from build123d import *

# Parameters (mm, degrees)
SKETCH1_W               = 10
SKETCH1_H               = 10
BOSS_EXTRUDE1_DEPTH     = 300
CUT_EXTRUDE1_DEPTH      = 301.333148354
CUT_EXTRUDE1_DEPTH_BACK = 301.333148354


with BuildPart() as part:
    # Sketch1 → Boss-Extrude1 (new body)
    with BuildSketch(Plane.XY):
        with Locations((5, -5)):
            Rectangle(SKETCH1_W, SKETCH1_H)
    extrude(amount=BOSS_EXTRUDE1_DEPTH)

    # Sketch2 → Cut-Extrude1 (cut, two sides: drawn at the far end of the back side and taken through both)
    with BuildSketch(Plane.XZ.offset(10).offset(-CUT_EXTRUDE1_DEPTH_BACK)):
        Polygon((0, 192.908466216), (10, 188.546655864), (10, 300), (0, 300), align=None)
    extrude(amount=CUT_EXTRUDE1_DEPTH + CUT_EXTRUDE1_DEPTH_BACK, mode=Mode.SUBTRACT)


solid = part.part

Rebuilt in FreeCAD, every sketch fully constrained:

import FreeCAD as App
import Part
import Sketcher
from FreeCAD import Vector
Q = App.Units.Quantity

doc = App.newDocument("Part")
body = doc.addObject("PartDesign::Body", "Body")

# Sketch on XY plane
sketch1 = doc.addObject("Sketcher::SketchObject", "Sketch")
body.addObject(sketch1)
sketch1.AttachmentSupport = (doc.XY_Plane, [""])
sketch1.MapMode = "FlatFace"
sketch1.addGeometry([
    Part.LineSegment(Vector(0, 0, 0), Vector(0, -10, 0)),
    Part.LineSegment(Vector(0, -10, 0), Vector(10, -10, 0)),
    Part.LineSegment(Vector(10, -10, 0), Vector(10, 0, 0)),
    Part.LineSegment(Vector(10, 0, 0), Vector(0, 0, 0)),
], False)
sketch1.addConstraint([
    Sketcher.Constraint("Coincident", 0, 2, 1, 1),
    Sketcher.Constraint("Coincident", 1, 2, 2, 1),
    Sketcher.Constraint("Coincident", 2, 2, 3, 1),
    Sketcher.Constraint("Coincident", 3, 2, 0, 1),
    Sketcher.Constraint("Vertical", 0),
    Sketcher.Constraint("Horizontal", 1),
    Sketcher.Constraint("Vertical", 2),
    Sketcher.Constraint("Horizontal", 3),
    Sketcher.Constraint("Coincident", 3, 2, -1, 1),
    Sketcher.Constraint("Equal", 3, 0),
    Sketcher.Constraint("DistanceX", 1, 1, 1, 2, Q("10 mm")),
])
pad1 = doc.addObject("PartDesign::Pad", "Pad")
body.addObject(pad1)
pad1.Profile = sketch1
pad1.Length = 300

# Sketch on XZ plane
sketch2 = doc.addObject("Sketcher::SketchObject", "Sketch001")
body.addObject(sketch2)
sketch2.AttachmentSupport = (doc.XZ_Plane, [""])
sketch2.MapMode = "FlatFace"
sketch2.AttachmentOffset = App.Placement(Vector(0, 0, 10), App.Rotation())
sketch2.addGeometry([
    Part.LineSegment(Vector(0, 193, 0), Vector(10, 189, 0)),
    Part.LineSegment(Vector(10, 189, 0), Vector(10, 300, 0)),
    Part.LineSegment(Vector(10, 300, 0), Vector(0, 300, 0)),
    Part.LineSegment(Vector(0, 300, 0), Vector(0, 193, 0)),
], False)
sketch2.addConstraint([
    Sketcher.Constraint("Coincident", 0, 2, 1, 1),
    Sketcher.Constraint("Coincident", 1, 2, 2, 1),
    Sketcher.Constraint("Coincident", 2, 2, 3, 1),
    Sketcher.Constraint("Coincident", 3, 2, 0, 1),
    Sketcher.Constraint("Vertical", 1),
    Sketcher.Constraint("Horizontal", 2),
    Sketcher.Constraint("Vertical", 3),
    Sketcher.Constraint("PointOnObject", 2, 2, -2),
    Sketcher.Constraint("DistanceX", 2, 2, 2, 1, Q("10 mm")),
    Sketcher.Constraint("DistanceY", -1, 1, 1, 2, Q("300 mm")),
    Sketcher.Constraint("DistanceY", 1, 1, 1, 2, Q("111.453344 mm")),
    Sketcher.Constraint("DistanceY", 3, 2, 3, 1, Q("107.091534 mm")),
])
pocket1 = doc.addObject("PartDesign::Pocket", "Pocket")
body.addObject(pocket1)
pocket1.Profile = sketch2
pocket1.Type = "ThroughAll"
pocket1.Midplane = True

doc.recompute()
